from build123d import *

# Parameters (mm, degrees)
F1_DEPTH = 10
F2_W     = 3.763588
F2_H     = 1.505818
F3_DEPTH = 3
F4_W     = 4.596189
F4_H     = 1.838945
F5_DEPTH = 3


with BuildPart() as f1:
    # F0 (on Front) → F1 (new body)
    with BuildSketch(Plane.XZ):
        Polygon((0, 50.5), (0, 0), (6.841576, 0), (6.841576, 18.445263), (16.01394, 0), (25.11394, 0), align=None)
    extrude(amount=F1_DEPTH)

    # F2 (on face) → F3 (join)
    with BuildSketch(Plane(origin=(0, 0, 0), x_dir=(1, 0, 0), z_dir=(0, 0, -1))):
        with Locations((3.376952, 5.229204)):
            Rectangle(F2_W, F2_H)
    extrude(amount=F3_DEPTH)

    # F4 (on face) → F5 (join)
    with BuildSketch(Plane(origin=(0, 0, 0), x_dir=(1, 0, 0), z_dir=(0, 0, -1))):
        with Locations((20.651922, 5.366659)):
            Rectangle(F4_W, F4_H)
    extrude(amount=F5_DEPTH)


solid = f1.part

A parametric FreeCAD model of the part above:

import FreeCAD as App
import Part
import Sketcher
Q = App.Units.Quantity

doc = App.newDocument("Part")
body = doc.addObject("PartDesign::Body", "Body")

sketch1 = body.newObject("Sketcher::SketchObject", "Sketch")
sketch1.AttachmentSupport = (doc.getObject("XZ_Plane"), [""])
sketch1.MapMode = "FlatFace"
sketch1.addGeometry([
    Part.LineSegment(App.Vector(0, 50, 0), App.Vector(0, 0, 0)),
    Part.LineSegment(App.Vector(0, 0, 0), App.Vector(7, 0, 0)),
    Part.LineSegment(App.Vector(7, 0, 0), App.Vector(7, 18, 0)),
    Part.LineSegment(App.Vector(7, 18, 0), App.Vector(16, 0, 0)),
    Part.LineSegment(App.Vector(16, 0, 0), App.Vector(25, 0, 0)),
    Part.LineSegment(App.Vector(25, 0, 0), App.Vector(0, 50, 0)),
], False)
sketch1.addConstraint([
    Sketcher.Constraint("Coincident", 0, 2, 1, 1),
    Sketcher.Constraint("Coincident", 1, 2, 2, 1),
    Sketcher.Constraint("Coincident", 2, 2, 3, 1),
    Sketcher.Constraint("Coincident", 3, 2, 4, 1),
    Sketcher.Constraint("Coincident", 4, 2, 5, 1),
    Sketcher.Constraint("Coincident", 5, 2, 0, 1),
    Sketcher.Constraint("Vertical", 0),
    Sketcher.Constraint("Horizontal", 1),
    Sketcher.Constraint("Vertical", 2),
    Sketcher.Constraint("Horizontal", 4),
    Sketcher.Constraint("Coincident", 0, 2, -1, 1),
    Sketcher.Constraint("PointOnObject", 3, 2, -1),
    Sketcher.Constraint("DistanceX", 4, 1, 4, 2, 9.1),
    Sketcher.Constraint("DistanceY", 0, 2, 0, 1, 50.5),
    Sketcher.Constraint("Distance", 3, 20.6),
    Sketcher.Constraint("Distance", 5, 56.4),
    Sketcher.Constraint("Angle", 3, Q("-63.56 deg")),
])
pad1 = body.newObject("PartDesign::Pad", "Pad")
pad1.Profile = sketch1
pad1.Length = 10

sketch2 = body.newObject("Sketcher::SketchObject", "Sketch001")
sketch2.AttachmentSupport = (doc.getObject("XY_Plane"), [""])
sketch2.MapMode = "FlatFace"
sketch2.addGeometry([
    Part.LineSegment(App.Vector(1.5, -6, 0), App.Vector(1.5, -4.5, 0)),
    Part.LineSegment(App.Vector(1.5, -4.5, 0), App.Vector(5.3, -4.5, 0)),
    Part.LineSegment(App.Vector(5.3, -4.5, 0), App.Vector(5.3, -6, 0)),
    Part.LineSegment(App.Vector(5.3, -6, 0), App.Vector(1.5, -6, 0)),
], False)
sketch2.addConstraint([
    Sketcher.Constraint("Coincident", 0, 2, 1, 1),
    Sketcher.Constraint("Coincident", 1, 2, 2, 1),
    Sketcher.Constraint("Coincident", 2, 2, 3, 1),
    Sketcher.Constraint("Coincident", 3, 2, 0, 1),
    Sketcher.Constraint("Vertical", 0),
    Sketcher.Constraint("Horizontal", 1),
    Sketcher.Constraint("Vertical", 2),
    Sketcher.Constraint("Horizontal", 3),
    Sketcher.Constraint("DistanceX", 1, 1, 1, 2, 3.763588),
    Sketcher.Constraint("DistanceY", 0, 1, 0, 2, 1.505818),
    Sketcher.Constraint("DistanceX", -1, 1, 0, 2, 1.495158),
    Sketcher.Constraint("DistanceY", 0, 2, -1, 1, 4.476295),
])
pad2 = body.newObject("PartDesign::Pad", "Pad001")
pad2.Profile = sketch2
pad2.Length = 3
pad2.Reversed = True

sketch3 = body.newObject("Sketcher::SketchObject", "Sketch002")
sketch3.AttachmentSupport = (doc.getObject("XY_Plane"), [""])
sketch3.MapMode = "FlatFace"
sketch3.addGeometry([
    Part.LineSegment(App.Vector(18.4, -6.3, 0), App.Vector(18.4, -4.4, 0)),
    Part.LineSegment(App.Vector(18.4, -4.4, 0), App.Vector(23, -4.4, 0)),
    Part.LineSegment(App.Vector(23, -4.4, 0), App.Vector(23, -6.3, 0)),
    Part.LineSegment(App.Vector(23, -6.3, 0), App.Vector(18.4, -6.3, 0)),
], False)
sketch3.addConstraint([
    Sketcher.Constraint("Coincident", 0, 2, 1, 1),
    Sketcher.Constraint("Coincident", 1, 2, 2, 1),
    Sketcher.Constraint("Coincident", 2, 2, 3, 1),
    Sketcher.Constraint("Coincident", 3, 2, 0, 1),
    Sketcher.Constraint("Vertical", 0),
    Sketcher.Constraint("Horizontal", 1),
    Sketcher.Constraint("Vertical", 2),
    Sketcher.Constraint("Horizontal", 3),
    Sketcher.Constraint("DistanceX", 1, 1, 1, 2, 4.596189),
    Sketcher.Constraint("DistanceY", 0, 1, 0, 2, 1.838945),
    Sketcher.Constraint("DistanceY", 2, 2, -1, 1, 6.286131),
    Sketcher.Constraint("DistanceX", -1, 1, 0, 2, 18.353828),
])
pad3 = body.newObject("PartDesign::Pad", "Pad002")
pad3.Profile = sketch3
pad3.Length = 3
pad3.Reversed = True

doc.recompute()
